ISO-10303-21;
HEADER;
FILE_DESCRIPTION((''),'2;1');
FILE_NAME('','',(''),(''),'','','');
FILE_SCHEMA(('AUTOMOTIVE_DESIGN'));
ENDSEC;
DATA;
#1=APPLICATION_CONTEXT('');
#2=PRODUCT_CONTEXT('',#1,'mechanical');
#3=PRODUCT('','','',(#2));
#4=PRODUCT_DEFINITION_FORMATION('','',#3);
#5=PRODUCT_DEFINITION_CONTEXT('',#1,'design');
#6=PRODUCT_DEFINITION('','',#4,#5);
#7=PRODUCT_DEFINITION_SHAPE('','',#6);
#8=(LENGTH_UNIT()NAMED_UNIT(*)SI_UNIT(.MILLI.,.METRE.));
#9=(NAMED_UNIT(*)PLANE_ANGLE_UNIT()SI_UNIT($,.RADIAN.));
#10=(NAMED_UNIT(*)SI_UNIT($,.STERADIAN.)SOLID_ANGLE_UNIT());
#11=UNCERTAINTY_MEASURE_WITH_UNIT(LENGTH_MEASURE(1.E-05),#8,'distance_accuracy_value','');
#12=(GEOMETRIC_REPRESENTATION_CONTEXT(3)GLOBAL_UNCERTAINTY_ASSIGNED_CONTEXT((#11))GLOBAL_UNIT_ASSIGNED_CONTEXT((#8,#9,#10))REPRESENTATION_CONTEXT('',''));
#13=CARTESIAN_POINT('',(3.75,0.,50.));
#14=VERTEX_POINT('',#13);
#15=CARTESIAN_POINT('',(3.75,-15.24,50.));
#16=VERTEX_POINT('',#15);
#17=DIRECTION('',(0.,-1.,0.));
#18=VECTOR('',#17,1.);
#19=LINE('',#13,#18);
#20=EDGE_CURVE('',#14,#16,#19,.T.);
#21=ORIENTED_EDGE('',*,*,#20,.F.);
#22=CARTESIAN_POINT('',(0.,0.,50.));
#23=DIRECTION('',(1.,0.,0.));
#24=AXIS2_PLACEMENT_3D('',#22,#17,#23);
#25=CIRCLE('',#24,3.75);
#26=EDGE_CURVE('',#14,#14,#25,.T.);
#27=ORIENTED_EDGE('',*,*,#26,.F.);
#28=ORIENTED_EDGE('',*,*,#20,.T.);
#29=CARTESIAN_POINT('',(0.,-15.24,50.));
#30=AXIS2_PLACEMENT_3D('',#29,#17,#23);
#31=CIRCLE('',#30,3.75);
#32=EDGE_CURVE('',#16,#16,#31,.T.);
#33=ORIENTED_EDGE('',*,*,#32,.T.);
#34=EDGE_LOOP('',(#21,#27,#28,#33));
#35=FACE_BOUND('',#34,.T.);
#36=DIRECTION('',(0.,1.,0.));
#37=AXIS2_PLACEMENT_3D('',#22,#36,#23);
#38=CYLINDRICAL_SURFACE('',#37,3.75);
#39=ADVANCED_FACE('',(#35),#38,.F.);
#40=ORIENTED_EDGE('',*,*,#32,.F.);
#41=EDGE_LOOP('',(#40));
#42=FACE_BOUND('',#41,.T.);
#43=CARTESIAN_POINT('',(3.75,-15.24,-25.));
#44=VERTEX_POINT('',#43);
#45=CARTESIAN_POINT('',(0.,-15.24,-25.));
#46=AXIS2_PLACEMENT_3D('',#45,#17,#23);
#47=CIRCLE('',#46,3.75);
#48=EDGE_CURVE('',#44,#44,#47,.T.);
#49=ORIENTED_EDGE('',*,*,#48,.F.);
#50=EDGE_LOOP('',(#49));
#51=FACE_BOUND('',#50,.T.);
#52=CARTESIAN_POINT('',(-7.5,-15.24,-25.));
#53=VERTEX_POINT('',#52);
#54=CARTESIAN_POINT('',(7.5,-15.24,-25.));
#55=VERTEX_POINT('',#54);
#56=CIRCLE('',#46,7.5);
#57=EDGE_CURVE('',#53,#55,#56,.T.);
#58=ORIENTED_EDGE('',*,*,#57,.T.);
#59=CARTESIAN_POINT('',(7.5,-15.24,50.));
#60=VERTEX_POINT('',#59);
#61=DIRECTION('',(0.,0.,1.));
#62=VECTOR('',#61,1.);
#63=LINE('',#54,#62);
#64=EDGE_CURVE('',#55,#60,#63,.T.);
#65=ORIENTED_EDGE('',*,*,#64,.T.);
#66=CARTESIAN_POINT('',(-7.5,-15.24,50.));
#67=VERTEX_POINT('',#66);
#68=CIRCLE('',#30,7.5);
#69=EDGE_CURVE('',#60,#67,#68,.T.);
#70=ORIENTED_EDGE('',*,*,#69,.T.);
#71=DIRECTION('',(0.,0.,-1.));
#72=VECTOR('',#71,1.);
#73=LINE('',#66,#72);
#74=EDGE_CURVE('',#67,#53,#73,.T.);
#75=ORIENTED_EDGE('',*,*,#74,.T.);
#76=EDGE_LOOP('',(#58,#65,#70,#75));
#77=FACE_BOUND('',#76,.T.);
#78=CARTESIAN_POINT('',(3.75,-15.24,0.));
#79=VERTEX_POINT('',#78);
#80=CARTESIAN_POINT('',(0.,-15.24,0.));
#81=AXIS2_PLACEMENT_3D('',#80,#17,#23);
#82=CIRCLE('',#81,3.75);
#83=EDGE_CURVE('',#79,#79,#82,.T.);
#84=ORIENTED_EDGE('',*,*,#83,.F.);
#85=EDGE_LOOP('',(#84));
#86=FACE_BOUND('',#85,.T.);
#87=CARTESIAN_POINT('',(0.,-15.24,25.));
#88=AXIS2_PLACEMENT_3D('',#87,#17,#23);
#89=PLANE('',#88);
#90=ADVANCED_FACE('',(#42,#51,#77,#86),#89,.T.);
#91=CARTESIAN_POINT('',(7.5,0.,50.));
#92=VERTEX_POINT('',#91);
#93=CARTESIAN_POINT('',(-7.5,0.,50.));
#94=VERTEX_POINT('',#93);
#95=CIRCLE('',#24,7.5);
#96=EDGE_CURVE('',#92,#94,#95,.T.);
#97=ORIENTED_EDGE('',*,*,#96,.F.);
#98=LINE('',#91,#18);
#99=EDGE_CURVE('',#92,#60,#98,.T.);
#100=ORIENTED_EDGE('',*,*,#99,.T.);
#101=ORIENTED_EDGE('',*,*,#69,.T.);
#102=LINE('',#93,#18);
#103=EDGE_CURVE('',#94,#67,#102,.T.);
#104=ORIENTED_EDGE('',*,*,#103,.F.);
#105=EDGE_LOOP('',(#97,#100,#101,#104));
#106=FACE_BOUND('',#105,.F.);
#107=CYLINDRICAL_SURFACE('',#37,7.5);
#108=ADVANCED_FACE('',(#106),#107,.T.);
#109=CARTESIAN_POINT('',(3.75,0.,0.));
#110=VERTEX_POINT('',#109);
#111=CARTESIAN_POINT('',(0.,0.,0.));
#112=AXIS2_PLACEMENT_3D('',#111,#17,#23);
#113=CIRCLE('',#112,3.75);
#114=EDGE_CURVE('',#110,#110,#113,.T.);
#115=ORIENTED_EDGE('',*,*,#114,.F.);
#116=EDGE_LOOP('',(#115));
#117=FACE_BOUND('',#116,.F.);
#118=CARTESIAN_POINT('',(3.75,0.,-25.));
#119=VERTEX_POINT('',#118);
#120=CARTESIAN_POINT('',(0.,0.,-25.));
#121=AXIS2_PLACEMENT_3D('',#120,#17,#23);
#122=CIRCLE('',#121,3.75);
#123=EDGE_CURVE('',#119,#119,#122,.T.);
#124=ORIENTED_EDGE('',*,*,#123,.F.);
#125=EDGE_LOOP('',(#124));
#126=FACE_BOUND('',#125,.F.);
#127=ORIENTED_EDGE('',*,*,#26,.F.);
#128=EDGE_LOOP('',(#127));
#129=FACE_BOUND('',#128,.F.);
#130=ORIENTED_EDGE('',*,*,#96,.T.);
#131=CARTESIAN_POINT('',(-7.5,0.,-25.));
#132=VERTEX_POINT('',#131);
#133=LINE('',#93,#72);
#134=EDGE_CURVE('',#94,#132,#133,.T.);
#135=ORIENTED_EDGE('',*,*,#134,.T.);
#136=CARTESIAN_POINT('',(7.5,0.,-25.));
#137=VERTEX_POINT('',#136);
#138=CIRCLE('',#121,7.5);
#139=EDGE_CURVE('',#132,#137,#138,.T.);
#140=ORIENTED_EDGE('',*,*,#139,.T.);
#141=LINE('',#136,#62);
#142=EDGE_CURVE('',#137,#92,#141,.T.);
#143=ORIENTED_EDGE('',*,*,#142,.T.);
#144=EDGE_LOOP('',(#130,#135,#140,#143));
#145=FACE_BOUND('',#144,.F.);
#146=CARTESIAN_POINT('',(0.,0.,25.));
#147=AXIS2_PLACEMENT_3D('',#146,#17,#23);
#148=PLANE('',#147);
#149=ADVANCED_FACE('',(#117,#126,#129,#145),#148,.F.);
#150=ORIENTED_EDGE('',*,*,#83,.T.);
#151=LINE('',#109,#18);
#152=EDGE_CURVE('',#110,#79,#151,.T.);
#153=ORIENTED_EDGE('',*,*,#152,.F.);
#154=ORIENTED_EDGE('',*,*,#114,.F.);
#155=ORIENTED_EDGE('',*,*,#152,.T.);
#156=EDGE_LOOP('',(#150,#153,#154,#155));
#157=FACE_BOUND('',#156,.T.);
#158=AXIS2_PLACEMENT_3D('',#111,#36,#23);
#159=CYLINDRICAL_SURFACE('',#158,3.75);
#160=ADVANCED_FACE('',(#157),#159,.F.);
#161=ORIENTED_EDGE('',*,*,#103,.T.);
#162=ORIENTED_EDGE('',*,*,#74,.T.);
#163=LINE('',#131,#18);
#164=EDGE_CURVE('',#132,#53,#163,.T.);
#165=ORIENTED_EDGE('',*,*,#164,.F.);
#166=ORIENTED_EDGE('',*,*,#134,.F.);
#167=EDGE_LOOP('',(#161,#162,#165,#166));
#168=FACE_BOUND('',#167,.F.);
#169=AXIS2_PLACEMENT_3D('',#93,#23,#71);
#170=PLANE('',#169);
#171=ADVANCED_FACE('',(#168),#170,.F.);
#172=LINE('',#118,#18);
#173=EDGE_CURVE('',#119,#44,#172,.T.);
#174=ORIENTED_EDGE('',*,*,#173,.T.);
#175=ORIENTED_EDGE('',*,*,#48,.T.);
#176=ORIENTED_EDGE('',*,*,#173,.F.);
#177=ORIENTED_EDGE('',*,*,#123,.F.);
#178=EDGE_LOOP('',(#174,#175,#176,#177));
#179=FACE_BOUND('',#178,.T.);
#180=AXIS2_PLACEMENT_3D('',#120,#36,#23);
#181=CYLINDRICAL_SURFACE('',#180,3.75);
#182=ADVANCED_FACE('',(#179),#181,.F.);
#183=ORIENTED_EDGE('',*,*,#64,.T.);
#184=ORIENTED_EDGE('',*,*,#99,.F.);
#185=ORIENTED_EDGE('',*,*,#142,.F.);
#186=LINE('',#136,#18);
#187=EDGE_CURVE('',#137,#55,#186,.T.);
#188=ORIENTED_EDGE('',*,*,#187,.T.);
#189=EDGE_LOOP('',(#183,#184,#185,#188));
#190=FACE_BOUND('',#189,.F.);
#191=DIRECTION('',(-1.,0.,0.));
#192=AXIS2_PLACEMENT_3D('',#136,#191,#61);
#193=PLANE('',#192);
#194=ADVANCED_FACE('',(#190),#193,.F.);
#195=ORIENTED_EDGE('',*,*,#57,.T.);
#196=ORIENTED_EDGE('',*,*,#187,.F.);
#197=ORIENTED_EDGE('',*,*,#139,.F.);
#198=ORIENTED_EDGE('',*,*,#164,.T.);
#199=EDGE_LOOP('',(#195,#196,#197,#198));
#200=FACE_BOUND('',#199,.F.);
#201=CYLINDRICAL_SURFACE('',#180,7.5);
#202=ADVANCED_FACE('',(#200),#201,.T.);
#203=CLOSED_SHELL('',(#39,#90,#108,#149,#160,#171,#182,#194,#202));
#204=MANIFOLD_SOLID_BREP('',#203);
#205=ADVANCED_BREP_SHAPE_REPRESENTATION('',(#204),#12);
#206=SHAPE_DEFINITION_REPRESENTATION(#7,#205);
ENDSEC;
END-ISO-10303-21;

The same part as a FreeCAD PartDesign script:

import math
import FreeCAD as App
import Part
import Sketcher

doc = App.newDocument("Part")
body = doc.addObject("PartDesign::Body", "Body")

# Sketch on XZ plane
sketch1 = body.newObject("Sketcher::SketchObject", "Sketch")
sketch1.AttachmentSupport = (doc.getObject("XZ_Plane"), [""])
sketch1.MapMode = "FlatFace"
sketch1.addGeometry([
    Part.LineSegment(App.Vector(7.5, -25, 0), App.Vector(7.5, 50, 0)),  # 0
    Part.ArcOfCircle(Part.Circle(App.Vector(0, 50, 0), App.Vector(0, 0, 1), 7.5), math.radians(0), math.radians(180)),  # 1
    Part.LineSegment(App.Vector(-7.5, 50, 0), App.Vector(-7.5, -25, 0)),  # 2
    Part.ArcOfCircle(Part.Circle(App.Vector(0, -25, 0), App.Vector(0, 0, 1), 7.5), math.radians(180), math.radians(360)),  # 3
    Part.Circle(App.Vector(0, -25, 0), App.Vector(0, 0, 1), 3.8),  # 4
    Part.Circle(App.Vector(0, 0, 0), App.Vector(0, 0, 1), 3.8),  # 5
    Part.Circle(App.Vector(0, 50, 0), App.Vector(0, 0, 1), 3.8),  # 6
], False)
sketch1.addConstraint([
    Sketcher.Constraint("Tangent", 0, 2, 1, 1),
    Sketcher.Constraint("Tangent", 1, 2, 2, 1),
    Sketcher.Constraint("Tangent", 2, 2, 3, 1),
    Sketcher.Constraint("Tangent", 3, 2, 0, 1),
    Sketcher.Constraint("Vertical", 0),
    Sketcher.Constraint("Vertical", 2),
    Sketcher.Constraint("Coincident", 5, 3, -1, 1),
    Sketcher.Constraint("Coincident", 4, 3, 3, 3),
    Sketcher.Constraint("Coincident", 6, 3, 1, 3),
    Sketcher.Constraint("Equal", 4, 5),
    Sketcher.Constraint("Equal", 5, 6),
    Sketcher.Constraint("PointOnObject", 1, 3, -2),
    Sketcher.Constraint("Diameter", 4, 7.5),
    Sketcher.Constraint("Radius", 1, 7.5),
    Sketcher.Constraint("DistanceY", 0, 1, 0, 2, 75.0),
    Sketcher.Constraint("DistanceY", -1, 1, 1, 3, 50.0),
])
pad1 = body.newObject("PartDesign::Pad", "Pad")
pad1.Profile = sketch1
pad1.Length = 15.24

doc.recompute()
